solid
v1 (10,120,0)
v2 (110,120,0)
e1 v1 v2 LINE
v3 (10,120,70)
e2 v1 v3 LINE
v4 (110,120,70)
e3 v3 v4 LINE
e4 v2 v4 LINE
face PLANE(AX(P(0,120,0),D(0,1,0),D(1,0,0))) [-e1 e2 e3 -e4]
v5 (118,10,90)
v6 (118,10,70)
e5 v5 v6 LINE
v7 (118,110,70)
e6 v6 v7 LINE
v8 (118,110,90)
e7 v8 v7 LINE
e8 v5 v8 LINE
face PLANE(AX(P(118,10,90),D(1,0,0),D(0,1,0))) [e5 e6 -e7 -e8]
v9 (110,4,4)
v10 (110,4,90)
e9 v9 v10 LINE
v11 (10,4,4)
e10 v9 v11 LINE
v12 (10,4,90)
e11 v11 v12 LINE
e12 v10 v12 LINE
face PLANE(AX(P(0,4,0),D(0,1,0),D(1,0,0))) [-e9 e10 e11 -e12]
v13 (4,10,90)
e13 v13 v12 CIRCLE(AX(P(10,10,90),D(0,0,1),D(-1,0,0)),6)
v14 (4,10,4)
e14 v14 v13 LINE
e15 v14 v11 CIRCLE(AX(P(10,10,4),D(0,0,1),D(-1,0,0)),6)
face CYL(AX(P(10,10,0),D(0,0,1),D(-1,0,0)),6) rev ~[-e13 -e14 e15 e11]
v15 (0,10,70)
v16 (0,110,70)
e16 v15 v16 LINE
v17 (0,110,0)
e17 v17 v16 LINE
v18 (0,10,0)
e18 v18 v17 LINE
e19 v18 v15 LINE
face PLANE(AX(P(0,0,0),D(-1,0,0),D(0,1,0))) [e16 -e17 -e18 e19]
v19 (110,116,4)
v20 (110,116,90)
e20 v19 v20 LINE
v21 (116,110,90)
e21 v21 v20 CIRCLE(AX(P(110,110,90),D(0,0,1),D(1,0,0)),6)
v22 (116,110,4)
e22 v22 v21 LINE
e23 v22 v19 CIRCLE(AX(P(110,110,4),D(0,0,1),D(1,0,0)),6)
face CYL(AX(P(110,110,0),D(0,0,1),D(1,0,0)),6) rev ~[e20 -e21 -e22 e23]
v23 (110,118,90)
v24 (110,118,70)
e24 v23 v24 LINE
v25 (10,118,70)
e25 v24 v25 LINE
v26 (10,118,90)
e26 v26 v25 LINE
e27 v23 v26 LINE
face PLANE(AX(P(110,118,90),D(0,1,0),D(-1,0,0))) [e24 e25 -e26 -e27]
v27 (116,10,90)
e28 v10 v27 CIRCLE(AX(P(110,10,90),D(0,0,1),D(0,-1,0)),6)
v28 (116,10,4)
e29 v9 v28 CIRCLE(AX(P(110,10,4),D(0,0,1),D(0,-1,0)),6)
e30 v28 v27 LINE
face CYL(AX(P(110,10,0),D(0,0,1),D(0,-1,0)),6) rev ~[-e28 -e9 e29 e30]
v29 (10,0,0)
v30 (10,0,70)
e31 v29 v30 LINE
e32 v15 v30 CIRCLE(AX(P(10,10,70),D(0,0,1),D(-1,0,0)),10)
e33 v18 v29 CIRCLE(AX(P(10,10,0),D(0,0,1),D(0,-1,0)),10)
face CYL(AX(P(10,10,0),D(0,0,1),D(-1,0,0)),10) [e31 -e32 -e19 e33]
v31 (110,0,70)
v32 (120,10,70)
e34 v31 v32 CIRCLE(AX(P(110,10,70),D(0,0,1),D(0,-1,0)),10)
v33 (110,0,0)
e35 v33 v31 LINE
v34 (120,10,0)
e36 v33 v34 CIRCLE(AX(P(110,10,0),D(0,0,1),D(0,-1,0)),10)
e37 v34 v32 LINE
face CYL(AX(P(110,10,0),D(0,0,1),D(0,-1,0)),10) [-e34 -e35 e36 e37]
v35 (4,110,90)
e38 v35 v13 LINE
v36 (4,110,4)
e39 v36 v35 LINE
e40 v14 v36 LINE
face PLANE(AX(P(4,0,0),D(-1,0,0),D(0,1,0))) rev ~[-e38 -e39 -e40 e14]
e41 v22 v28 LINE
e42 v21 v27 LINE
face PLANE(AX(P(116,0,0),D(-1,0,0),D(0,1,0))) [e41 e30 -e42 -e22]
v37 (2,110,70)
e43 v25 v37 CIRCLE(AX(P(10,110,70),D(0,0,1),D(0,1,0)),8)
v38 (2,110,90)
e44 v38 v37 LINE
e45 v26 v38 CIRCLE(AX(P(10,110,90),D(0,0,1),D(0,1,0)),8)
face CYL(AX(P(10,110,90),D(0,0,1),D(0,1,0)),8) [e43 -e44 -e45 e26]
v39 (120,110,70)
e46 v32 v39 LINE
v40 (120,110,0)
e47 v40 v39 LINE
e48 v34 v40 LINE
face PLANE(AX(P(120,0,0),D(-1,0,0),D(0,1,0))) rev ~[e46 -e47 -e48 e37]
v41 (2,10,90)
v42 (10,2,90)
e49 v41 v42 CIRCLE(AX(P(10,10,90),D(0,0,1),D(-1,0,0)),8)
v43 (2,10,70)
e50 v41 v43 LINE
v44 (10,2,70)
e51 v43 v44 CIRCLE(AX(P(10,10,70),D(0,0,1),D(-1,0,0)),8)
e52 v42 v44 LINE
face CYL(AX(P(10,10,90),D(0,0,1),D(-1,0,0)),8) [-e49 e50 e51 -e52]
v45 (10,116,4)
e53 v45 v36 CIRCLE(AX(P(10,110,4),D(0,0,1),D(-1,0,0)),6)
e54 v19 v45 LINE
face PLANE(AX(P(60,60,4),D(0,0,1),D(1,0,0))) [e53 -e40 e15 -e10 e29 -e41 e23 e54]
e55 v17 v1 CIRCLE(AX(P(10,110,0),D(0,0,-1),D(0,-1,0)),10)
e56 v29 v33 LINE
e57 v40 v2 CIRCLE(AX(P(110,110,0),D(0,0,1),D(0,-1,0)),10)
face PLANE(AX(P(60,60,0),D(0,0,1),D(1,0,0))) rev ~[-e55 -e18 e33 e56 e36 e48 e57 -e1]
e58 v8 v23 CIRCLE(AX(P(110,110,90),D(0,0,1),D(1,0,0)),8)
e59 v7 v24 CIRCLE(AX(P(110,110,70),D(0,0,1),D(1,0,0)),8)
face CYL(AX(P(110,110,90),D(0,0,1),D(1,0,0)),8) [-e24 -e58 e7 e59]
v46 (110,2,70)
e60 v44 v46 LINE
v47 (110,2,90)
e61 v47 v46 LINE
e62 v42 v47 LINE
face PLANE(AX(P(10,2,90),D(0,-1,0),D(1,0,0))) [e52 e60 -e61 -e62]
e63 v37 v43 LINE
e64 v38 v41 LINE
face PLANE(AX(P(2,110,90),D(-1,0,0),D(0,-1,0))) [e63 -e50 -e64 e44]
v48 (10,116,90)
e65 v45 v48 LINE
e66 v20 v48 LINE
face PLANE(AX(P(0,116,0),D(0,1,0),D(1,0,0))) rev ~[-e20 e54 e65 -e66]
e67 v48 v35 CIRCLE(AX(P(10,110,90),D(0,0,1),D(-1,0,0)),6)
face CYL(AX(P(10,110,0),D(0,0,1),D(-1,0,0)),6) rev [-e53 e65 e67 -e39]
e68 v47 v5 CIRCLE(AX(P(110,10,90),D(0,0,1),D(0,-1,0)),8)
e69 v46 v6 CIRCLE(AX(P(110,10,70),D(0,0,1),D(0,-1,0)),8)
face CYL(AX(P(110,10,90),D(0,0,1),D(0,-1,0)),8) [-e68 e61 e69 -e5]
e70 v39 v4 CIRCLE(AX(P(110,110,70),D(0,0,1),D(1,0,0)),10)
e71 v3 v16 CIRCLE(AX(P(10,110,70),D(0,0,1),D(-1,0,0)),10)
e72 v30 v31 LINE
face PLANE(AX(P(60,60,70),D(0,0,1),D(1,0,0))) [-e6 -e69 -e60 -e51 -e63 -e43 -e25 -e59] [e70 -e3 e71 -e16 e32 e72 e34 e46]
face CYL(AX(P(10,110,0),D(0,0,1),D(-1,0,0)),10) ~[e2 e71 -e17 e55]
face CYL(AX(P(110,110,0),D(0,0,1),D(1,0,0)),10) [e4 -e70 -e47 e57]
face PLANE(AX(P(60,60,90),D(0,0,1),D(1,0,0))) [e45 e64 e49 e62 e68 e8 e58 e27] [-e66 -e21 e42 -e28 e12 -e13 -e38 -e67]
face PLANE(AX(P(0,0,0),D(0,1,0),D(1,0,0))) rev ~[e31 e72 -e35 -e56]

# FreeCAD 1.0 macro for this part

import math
import FreeCAD as App
import Part
import Sketcher
from FreeCAD import Vector
Q = App.Units.Quantity


def edges_at(feature, points):
    """Names of the edges that pass closest to the given points."""
    edges = feature.Shape.Edges
    near = lambda p: min(range(len(edges)), key=lambda i: edges[i].distToShape(Part.Vertex(*p))[0])
    return sorted({f"Edge{near(p) + 1}" for p in points})


def faces_at(feature, points):
    """Names of the faces that lie closest to the given points."""
    faces = feature.Shape.Faces
    near = lambda p: min(range(len(faces)), key=lambda i: faces[i].distToShape(Part.Vertex(*p))[0])
    return sorted({f"Face{near(p) + 1}" for p in points})


def add_polygon(sketch, points):
    """Adds a closed chain of lines whose ends are joined by coincident constraints."""
    first, n = sketch.GeometryCount, len(points)
    for a, b in zip(points, points[1:] + points[:1]):
        sketch.addGeometry(Part.LineSegment(App.Vector(*a, 0), App.Vector(*b, 0)), False)
    for i in range(n):
        sketch.addConstraint(Sketcher.Constraint("Coincident", first + i, 2, first + (i + 1) % n, 1))

doc = App.newDocument("Part")
body = doc.addObject("PartDesign::Body", "Body")

# Sketch on XY plane
sketch1 = body.newObject("Sketcher::SketchObject", "Sketch")
sketch1.AttachmentSupport = (doc.getObject("XY_Plane"), [""])
sketch1.MapMode = "FlatFace"
add_polygon(sketch1, [(0, 120), (0, 0), (120, 0), (120, 120)])  # lines 0-3
sketch1.addConstraint([
    Sketcher.Constraint("Vertical", 0),
    Sketcher.Constraint("Horizontal", 1),
    Sketcher.Constraint("Vertical", 2),
    Sketcher.Constraint("Horizontal", 3),
    Sketcher.Constraint("Coincident", 0, 2, -1, 1),
    Sketcher.Constraint("Equal", 3, 0),
    Sketcher.Constraint("DistanceX", 1, 1, 1, 2, Q("120 mm")),
])
pad1 = body.newObject("PartDesign::Pad", "Pad")
pad1.Profile = sketch1
pad1.Length = 90
doc.recompute()

fillet = body.newObject("PartDesign::Fillet", "Fillet")
fillet.Base = (pad1, edges_at(pad1, [
    (0, 120, 45),
    (120, 120, 45),
    (120, 0, 45),
    (0, 0, 45),
]))
fillet.Radius = 10
doc.recompute()

thickness = body.newObject("PartDesign::Thickness", "Thickness")
thickness.Base = (fillet, faces_at(fillet, [(60, 60, 90)]))
thickness.Value = 4
thickness.Reversed = True
thickness.Join = "Intersection"

# Sketch on XY plane
sketch2 = body.newObject("Sketcher::SketchObject", "Sketch001")
sketch2.AttachmentSupport = (doc.getObject("XY_Plane"), [""])
sketch2.MapMode = "FlatFace"
sketch2.AttachmentOffset = App.Placement(Vector(0, 0, 90), App.Rotation())
add_polygon(sketch2, [(-20, 140), (-20, -20), (140, -20), (140, 140)])  # lines 0-3
sketch2.addGeometry(Part.LineSegment(Vector(110, 2, 0), Vector(10, 2, 0)), False)  # 4
sketch2.addGeometry(Part.ArcOfCircle(Part.Circle(Vector(10, 10, 0), Vector(0, 0, 1), 8), math.radians(-180), math.radians(-90)), False)  # 5
sketch2.addGeometry(Part.LineSegment(Vector(2, 10, 0), Vector(2, 110, 0)), False)  # 6
sketch2.addGeometry(Part.ArcOfCircle(Part.Circle(Vector(10, 110, 0), Vector(0, 0, 1), 8), math.radians(90), math.radians(180)), False)  # 7
sketch2.addGeometry(Part.LineSegment(Vector(10, 118, 0), Vector(110, 118, 0)), False)  # 8
sketch2.addGeometry(Part.ArcOfCircle(Part.Circle(Vector(110, 110, 0), Vector(0, 0, 1), 8), math.radians(0), math.radians(90)), False)  # 9
sketch2.addGeometry(Part.LineSegment(Vector(118, 110, 0), Vector(118, 10, 0)), False)  # 10
sketch2.addGeometry(Part.ArcOfCircle(Part.Circle(Vector(110, 10, 0), Vector(0, 0, 1), 8), math.radians(-90), math.radians(0)), False)  # 11
sketch2.addConstraint([
    Sketcher.Constraint("Tangent", 4, 2, 5, 2),
    Sketcher.Constraint("Tangent", 5, 1, 6, 1),
    Sketcher.Constraint("Tangent", 6, 2, 7, 2),
    Sketcher.Constraint("Tangent", 7, 1, 8, 1),
    Sketcher.Constraint("Tangent", 8, 2, 9, 2),
    Sketcher.Constraint("Tangent", 9, 1, 10, 1),
    Sketcher.Constraint("Tangent", 10, 2, 11, 2),
    Sketcher.Constraint("Tangent", 11, 1, 4, 1),
    Sketcher.Constraint("Vertical", 0),
    Sketcher.Constraint("Horizontal", 1),
    Sketcher.Constraint("Vertical", 2),
    Sketcher.Constraint("Horizontal", 3),
    Sketcher.Constraint("Horizontal", 4),
    Sketcher.Constraint("Vertical", 6),
    Sketcher.Constraint("Horizontal", 8),
    Sketcher.Constraint("Vertical", 10),
    Sketcher.Constraint("Equal", 5, 7),
    Sketcher.Constraint("Equal", 7, 9),
    Sketcher.Constraint("Equal", 9, 11),
    Sketcher.Constraint("Equal", 3, 0),
    Sketcher.Constraint("Equal", 8, 6),
    Sketcher.Constraint("Radius", 5, Q("8 mm")),
    Sketcher.Constraint("DistanceX", 4, 2, 4, 1, Q("100 mm")),
    Sketcher.Constraint("DistanceX", -1, 1, 5, 3, Q("10 mm")),
    Sketcher.Constraint("DistanceY", -1, 1, 5, 3, Q("10 mm")),
    Sketcher.Constraint("DistanceX", 1, 1, 1, 2, Q("160.418 mm")),
    Sketcher.Constraint("DistanceX", 0, 2, -1, 1, Q("20.209 mm")),
    Sketcher.Constraint("DistanceY", 0, 2, -1, 1, Q("20.209 mm")),
])
pocket1 = body.newObject("PartDesign::Pocket", "Pocket")
pocket1.Profile = sketch2
pocket1.Length = 20

doc.recompute()
